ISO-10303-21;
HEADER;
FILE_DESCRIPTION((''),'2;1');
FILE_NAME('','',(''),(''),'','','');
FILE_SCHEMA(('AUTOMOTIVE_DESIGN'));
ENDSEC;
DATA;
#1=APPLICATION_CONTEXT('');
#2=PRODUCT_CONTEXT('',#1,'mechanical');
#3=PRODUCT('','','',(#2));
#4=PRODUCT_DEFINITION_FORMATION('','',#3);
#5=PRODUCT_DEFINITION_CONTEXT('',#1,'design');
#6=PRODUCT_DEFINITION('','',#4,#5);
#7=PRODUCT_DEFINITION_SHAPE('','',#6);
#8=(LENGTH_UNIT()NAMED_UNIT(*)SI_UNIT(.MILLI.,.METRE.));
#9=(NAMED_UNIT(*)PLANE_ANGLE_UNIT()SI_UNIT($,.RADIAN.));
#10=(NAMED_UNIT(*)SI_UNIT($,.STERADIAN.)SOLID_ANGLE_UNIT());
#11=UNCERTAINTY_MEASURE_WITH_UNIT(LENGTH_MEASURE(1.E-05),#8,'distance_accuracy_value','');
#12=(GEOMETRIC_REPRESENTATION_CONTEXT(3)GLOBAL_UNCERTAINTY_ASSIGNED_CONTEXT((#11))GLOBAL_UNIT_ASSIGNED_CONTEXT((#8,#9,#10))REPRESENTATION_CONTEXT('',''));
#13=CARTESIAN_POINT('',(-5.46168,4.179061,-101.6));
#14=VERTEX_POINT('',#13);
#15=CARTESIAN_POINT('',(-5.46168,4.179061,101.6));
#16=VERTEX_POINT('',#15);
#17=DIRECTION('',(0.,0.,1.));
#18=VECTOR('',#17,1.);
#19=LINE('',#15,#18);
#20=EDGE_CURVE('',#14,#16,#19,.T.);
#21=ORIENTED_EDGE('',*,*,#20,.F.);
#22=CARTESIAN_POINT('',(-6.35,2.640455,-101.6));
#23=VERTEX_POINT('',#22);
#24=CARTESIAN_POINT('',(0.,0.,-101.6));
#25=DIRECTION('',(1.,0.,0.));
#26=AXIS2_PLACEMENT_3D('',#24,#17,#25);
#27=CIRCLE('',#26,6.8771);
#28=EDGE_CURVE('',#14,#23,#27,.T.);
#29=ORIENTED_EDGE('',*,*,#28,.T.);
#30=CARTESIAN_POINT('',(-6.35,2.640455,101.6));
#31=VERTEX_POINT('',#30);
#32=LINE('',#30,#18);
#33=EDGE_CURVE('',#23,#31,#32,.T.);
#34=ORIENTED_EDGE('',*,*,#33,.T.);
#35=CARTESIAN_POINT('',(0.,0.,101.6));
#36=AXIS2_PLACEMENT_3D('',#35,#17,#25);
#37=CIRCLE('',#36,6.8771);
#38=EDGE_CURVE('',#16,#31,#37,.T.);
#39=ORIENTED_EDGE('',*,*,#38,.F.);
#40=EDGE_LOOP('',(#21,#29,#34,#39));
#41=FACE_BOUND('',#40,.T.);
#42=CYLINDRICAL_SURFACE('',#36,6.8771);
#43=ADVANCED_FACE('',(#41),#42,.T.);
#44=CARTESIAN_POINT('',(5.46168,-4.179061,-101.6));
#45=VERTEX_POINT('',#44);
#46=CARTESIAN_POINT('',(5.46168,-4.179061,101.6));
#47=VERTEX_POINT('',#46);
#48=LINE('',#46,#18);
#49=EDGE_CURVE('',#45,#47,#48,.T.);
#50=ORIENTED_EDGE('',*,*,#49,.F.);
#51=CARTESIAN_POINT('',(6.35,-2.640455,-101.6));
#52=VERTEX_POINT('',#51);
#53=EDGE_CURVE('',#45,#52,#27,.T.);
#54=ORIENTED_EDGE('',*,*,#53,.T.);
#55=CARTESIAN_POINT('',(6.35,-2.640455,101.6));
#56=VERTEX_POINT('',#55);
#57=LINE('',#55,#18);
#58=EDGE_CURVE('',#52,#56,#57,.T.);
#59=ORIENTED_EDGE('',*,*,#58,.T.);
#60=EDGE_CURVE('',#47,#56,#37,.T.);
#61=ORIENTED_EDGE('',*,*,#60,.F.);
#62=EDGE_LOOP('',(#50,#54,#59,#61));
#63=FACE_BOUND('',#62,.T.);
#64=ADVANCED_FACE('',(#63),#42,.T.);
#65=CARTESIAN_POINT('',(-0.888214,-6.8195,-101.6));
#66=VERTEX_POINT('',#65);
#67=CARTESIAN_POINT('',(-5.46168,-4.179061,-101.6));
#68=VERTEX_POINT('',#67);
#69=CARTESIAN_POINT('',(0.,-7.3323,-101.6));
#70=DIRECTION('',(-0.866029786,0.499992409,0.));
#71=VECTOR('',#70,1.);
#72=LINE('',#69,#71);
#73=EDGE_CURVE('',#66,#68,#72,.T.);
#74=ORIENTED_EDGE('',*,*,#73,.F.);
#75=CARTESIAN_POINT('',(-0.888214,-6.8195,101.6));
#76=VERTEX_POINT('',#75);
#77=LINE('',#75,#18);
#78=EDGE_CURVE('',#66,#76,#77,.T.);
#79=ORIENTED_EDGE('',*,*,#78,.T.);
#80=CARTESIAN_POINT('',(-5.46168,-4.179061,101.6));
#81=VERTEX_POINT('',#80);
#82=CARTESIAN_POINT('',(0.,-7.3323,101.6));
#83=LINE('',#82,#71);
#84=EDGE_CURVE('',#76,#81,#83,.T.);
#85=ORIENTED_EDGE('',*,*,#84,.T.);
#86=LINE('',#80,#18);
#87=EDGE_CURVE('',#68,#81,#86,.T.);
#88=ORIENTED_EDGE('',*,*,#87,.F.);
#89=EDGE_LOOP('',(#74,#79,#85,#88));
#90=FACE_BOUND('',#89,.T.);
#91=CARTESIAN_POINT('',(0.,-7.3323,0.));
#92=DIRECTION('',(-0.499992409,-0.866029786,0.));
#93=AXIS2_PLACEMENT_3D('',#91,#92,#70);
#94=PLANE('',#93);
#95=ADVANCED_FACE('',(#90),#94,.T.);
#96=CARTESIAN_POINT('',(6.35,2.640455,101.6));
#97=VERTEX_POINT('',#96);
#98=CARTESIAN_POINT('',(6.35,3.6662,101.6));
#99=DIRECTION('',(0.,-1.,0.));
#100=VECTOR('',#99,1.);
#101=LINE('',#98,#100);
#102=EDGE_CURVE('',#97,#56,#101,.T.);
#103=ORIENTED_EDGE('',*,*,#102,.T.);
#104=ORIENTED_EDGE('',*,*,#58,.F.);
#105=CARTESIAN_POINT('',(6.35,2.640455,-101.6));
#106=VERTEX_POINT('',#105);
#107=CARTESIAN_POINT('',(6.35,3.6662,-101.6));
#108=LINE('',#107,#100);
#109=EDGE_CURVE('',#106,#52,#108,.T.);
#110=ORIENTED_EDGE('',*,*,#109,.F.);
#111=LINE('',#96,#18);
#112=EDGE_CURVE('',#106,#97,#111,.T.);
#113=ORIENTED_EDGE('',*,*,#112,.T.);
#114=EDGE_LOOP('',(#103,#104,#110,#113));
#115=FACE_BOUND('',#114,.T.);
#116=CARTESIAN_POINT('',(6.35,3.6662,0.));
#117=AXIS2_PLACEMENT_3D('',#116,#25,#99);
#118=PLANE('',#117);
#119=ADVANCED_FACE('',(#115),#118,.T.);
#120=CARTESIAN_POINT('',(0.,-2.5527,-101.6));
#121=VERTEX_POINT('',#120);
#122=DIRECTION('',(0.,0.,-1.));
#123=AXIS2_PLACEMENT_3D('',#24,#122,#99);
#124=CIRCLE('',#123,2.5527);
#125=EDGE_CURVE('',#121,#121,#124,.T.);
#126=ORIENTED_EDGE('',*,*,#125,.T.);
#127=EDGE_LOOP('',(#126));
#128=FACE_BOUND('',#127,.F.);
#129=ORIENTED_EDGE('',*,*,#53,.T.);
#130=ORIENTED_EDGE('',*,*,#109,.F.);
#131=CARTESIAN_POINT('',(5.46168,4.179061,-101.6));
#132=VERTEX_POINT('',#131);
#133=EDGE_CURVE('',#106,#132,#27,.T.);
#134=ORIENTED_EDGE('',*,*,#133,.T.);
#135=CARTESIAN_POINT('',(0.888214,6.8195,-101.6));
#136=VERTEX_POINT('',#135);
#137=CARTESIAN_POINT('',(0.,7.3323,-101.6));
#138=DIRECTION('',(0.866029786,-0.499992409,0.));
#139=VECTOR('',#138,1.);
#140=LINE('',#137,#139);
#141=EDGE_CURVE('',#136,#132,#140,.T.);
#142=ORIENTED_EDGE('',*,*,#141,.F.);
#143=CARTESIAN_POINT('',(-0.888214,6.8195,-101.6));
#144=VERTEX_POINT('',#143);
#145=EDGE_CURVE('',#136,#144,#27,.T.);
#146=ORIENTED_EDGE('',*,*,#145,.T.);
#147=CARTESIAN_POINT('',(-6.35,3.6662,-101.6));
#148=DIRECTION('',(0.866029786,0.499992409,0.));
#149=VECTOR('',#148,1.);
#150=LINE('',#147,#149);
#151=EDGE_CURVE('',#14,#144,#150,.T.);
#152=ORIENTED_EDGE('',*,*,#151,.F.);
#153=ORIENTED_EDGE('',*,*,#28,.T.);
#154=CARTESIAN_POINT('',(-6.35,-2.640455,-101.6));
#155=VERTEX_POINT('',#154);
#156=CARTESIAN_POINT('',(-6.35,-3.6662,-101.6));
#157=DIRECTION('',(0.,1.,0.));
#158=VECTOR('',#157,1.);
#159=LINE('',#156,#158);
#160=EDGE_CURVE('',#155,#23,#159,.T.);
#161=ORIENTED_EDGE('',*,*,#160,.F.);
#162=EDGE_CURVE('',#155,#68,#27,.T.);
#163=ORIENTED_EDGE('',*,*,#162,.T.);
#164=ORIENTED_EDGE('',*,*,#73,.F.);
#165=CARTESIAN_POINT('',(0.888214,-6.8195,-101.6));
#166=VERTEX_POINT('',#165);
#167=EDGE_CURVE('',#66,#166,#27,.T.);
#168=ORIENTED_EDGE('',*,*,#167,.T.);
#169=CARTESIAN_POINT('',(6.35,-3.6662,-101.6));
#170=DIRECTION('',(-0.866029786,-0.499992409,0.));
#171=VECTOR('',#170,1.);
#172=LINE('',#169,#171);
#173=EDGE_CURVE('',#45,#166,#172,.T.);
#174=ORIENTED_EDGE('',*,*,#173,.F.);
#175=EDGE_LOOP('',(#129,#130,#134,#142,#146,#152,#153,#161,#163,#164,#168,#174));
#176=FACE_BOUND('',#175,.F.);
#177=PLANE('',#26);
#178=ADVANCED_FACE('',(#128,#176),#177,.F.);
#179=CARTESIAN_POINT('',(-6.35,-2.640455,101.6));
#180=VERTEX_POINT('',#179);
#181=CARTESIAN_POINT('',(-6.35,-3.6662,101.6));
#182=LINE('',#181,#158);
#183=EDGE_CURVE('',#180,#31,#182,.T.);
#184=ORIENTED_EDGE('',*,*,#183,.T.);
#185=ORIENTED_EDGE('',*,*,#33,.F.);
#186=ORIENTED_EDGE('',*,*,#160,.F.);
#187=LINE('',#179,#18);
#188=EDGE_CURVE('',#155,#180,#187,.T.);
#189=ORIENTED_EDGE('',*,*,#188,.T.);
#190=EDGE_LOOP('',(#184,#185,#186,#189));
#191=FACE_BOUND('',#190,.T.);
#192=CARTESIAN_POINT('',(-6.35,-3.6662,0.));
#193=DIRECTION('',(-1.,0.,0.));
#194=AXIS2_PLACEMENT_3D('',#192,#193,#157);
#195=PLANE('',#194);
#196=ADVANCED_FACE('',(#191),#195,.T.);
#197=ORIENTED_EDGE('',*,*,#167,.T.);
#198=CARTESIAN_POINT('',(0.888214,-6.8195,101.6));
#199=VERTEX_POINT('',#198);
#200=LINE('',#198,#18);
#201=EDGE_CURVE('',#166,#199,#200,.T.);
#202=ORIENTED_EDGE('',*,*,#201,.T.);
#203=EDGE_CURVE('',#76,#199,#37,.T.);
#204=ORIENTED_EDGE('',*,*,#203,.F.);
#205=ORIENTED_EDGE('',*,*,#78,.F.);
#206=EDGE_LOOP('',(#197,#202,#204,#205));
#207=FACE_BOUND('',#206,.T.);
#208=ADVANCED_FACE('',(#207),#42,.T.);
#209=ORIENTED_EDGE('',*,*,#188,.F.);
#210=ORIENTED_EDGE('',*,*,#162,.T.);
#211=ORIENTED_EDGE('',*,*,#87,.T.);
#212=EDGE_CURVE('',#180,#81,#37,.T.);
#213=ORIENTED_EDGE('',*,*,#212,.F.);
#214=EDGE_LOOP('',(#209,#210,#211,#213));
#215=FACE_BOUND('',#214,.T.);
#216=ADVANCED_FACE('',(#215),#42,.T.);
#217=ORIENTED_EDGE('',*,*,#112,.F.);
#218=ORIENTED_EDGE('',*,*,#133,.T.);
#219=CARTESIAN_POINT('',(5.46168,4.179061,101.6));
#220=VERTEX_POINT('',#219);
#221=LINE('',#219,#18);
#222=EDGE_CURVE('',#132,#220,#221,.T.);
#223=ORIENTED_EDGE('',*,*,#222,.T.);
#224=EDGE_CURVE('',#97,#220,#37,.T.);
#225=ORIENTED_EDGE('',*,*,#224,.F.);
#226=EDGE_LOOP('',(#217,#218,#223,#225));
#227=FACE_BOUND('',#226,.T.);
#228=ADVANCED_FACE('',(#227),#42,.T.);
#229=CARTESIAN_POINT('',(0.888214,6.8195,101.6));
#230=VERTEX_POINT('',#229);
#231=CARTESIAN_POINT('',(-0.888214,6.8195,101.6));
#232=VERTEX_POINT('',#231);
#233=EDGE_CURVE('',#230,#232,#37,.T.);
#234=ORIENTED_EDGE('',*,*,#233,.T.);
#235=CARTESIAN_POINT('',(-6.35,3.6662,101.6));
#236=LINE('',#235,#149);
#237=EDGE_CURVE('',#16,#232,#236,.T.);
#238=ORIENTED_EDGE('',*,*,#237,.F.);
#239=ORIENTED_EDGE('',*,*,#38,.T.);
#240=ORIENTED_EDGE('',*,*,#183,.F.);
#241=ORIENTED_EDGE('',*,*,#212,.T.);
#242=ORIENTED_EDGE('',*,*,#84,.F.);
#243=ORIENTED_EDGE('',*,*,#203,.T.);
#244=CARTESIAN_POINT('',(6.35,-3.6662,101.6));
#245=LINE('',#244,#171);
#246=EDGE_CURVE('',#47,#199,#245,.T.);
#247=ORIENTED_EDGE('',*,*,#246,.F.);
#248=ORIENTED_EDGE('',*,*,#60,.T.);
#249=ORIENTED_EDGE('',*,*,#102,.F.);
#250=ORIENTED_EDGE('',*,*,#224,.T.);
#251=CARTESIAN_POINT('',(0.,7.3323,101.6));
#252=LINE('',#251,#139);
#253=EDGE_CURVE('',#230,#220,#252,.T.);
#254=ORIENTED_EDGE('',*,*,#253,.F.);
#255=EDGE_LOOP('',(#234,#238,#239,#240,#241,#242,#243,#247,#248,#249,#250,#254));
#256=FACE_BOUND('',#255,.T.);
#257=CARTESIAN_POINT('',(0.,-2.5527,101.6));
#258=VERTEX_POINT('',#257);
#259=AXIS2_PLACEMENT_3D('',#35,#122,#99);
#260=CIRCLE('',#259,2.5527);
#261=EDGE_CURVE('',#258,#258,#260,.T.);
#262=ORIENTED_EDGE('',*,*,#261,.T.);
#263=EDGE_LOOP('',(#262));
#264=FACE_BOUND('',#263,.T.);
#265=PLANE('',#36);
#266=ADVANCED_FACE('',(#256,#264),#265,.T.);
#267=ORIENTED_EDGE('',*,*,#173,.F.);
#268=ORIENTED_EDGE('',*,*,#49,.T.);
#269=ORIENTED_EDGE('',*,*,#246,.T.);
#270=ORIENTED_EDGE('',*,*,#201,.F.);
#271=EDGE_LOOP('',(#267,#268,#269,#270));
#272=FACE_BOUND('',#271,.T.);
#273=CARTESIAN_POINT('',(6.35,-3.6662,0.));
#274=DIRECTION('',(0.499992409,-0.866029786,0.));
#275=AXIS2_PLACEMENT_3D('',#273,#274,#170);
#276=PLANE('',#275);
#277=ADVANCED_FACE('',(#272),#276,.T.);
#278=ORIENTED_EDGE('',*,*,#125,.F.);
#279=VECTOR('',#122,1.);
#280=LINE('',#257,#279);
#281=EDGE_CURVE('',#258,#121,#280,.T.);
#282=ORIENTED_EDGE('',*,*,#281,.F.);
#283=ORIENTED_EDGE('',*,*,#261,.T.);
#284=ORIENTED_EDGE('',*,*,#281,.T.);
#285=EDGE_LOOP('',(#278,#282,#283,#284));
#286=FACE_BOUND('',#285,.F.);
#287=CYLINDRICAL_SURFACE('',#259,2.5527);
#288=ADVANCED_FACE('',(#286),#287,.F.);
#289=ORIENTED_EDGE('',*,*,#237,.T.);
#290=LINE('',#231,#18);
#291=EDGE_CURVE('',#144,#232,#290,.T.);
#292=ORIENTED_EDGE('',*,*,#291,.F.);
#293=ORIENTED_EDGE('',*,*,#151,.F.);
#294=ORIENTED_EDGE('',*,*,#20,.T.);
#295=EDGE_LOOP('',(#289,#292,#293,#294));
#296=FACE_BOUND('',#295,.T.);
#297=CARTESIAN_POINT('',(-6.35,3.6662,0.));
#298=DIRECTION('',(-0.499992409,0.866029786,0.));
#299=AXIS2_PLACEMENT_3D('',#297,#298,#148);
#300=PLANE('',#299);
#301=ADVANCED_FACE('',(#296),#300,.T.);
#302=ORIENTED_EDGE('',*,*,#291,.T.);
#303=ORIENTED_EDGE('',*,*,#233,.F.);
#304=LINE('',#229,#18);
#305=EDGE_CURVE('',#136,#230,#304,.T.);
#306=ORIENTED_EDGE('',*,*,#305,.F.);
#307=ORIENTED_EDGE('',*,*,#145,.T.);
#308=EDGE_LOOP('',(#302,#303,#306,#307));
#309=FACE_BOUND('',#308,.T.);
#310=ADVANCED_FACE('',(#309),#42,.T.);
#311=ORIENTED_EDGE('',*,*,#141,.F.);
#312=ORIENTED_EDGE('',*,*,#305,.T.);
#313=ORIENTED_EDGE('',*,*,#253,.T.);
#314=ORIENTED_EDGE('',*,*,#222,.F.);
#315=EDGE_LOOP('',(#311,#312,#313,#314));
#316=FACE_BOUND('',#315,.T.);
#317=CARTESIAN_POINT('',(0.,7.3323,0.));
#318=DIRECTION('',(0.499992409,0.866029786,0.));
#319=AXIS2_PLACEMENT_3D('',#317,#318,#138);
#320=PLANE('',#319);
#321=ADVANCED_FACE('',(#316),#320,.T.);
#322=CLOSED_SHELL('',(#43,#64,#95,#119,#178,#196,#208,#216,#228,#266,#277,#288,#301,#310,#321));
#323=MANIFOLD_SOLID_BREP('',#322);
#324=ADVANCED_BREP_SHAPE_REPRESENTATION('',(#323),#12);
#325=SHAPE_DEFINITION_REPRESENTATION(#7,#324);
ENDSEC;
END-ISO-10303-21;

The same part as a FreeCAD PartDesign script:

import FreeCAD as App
import Part
import Sketcher
from FreeCAD import Vector
Q = App.Units.Quantity


def add_polygon(sketch, points):
    """Adds a closed chain of lines whose ends are joined by coincident constraints."""
    first, n = sketch.GeometryCount, len(points)
    for a, b in zip(points, points[1:] + points[:1]):
        sketch.addGeometry(Part.LineSegment(App.Vector(*a, 0), App.Vector(*b, 0)), False)
    for i in range(n):
        sketch.addConstraint(Sketcher.Constraint("Coincident", first + i, 2, first + (i + 1) % n, 1))

doc = App.newDocument("Part")
body = doc.addObject("PartDesign::Body", "Body")

# Sketch on XY plane
sketch1 = doc.addObject("Sketcher::SketchObject", "Sketch")
body.addObject(sketch1)
sketch1.AttachmentSupport = (doc.XY_Plane, [""])
sketch1.MapMode = "FlatFace"
add_polygon(sketch1, [(-6.35, 3.6662), (-6.35, -3.6662), (0, -7.3323), (6.35, -3.6662), (6.35, 3.6662), (0, 7.3323)])  # lines 0-5
sketch1.addConstraint(Sketcher.Constraint("Vertical", 0))
sketch1.addConstraint(Sketcher.Constraint("Vertical", 3))
sketch1.addConstraint(Sketcher.Constraint("Symmetric", 0, 2, 3, 2, -1, 1))
sketch1.addConstraint(Sketcher.Constraint("Symmetric", 1, 2, 4, 2, -1, 1))
sketch1.addConstraint(Sketcher.Constraint("PointOnObject", 1, 2, -2))
sketch1.addConstraint(Sketcher.Constraint("Parallel", 2, 5))
sketch1.addConstraint(Sketcher.Constraint("Horizontal", 0, 2, 2, 2))
sketch1.addConstraint(Sketcher.Constraint("DistanceX", 0, 2, 2, 2, Q("0.5 in")))
sketch1.addConstraint(Sketcher.Constraint("Angle", 1, Q("-29.9995 deg")))
sketch1.addConstraint(Sketcher.Constraint("DistanceY", 1, 2, 3, 2, Q("0.433 in")))
pad1 = doc.addObject("PartDesign::Pad", "Pad")
body.addObject(pad1)
pad1.Profile = sketch1
pad1.Length = Q("8 in")
pad1.Midplane = True

# Sketch on XY plane
sketch2 = doc.addObject("Sketcher::SketchObject", "Sketch001")
body.addObject(sketch2)
sketch2.AttachmentSupport = (doc.XY_Plane, [""])
sketch2.MapMode = "FlatFace"
sketch2.AttachmentOffset = App.Placement(Vector(0, 0, 4 * 25.4), App.Rotation())
sketch2.addGeometry(Part.Circle(Vector(0, 0, 0), Vector(0, 0, 1), 2.5527), False)
sketch2.addConstraint(Sketcher.Constraint("Coincident", 0, 3, -1, 1))
sketch2.addConstraint(Sketcher.Constraint("Diameter", 0, Q("0.201 in")))
doc.recompute()
hole = doc.addObject("PartDesign::Hole", "Hole")
body.addObject(hole)
hole.Profile = sketch2
hole.ThreadType = "None"
hole.Diameter = Q("0.201 in")
hole.DepthType = "ThroughAll"

# Sketch on XY plane
sketch3 = doc.addObject("Sketcher::SketchObject", "Sketch002")
body.addObject(sketch3)
sketch3.AttachmentSupport = (doc.XY_Plane, [""])
sketch3.MapMode = "FlatFace"
sketch3.AttachmentOffset = App.Placement(Vector(0, 0, 4 * 25.4), App.Rotation())
sketch3.addGeometry(Part.Circle(Vector(0, 0, 0), Vector(0, 0, 1), 8.89), False)
sketch3.addGeometry(Part.Circle(Vector(0, 0, 0), Vector(0, 0, 1), 6.8771), False)
sketch3.addConstraint(Sketcher.Constraint("Coincident", 0, 3, -1, 1))
sketch3.addConstraint(Sketcher.Constraint("Coincident", 1, 3, -1, 1))
sketch3.addConstraint(Sketcher.Constraint("Diameter", 0, Q("0.7 in")))
sketch3.addConstraint(Sketcher.Constraint("Diameter", 1, Q("0.5415 in")))
pocket1 = doc.addObject("PartDesign::Pocket", "Pocket")
body.addObject(pocket1)
pocket1.Profile = sketch3
pocket1.Type = "ThroughAll"

doc.recompute()
